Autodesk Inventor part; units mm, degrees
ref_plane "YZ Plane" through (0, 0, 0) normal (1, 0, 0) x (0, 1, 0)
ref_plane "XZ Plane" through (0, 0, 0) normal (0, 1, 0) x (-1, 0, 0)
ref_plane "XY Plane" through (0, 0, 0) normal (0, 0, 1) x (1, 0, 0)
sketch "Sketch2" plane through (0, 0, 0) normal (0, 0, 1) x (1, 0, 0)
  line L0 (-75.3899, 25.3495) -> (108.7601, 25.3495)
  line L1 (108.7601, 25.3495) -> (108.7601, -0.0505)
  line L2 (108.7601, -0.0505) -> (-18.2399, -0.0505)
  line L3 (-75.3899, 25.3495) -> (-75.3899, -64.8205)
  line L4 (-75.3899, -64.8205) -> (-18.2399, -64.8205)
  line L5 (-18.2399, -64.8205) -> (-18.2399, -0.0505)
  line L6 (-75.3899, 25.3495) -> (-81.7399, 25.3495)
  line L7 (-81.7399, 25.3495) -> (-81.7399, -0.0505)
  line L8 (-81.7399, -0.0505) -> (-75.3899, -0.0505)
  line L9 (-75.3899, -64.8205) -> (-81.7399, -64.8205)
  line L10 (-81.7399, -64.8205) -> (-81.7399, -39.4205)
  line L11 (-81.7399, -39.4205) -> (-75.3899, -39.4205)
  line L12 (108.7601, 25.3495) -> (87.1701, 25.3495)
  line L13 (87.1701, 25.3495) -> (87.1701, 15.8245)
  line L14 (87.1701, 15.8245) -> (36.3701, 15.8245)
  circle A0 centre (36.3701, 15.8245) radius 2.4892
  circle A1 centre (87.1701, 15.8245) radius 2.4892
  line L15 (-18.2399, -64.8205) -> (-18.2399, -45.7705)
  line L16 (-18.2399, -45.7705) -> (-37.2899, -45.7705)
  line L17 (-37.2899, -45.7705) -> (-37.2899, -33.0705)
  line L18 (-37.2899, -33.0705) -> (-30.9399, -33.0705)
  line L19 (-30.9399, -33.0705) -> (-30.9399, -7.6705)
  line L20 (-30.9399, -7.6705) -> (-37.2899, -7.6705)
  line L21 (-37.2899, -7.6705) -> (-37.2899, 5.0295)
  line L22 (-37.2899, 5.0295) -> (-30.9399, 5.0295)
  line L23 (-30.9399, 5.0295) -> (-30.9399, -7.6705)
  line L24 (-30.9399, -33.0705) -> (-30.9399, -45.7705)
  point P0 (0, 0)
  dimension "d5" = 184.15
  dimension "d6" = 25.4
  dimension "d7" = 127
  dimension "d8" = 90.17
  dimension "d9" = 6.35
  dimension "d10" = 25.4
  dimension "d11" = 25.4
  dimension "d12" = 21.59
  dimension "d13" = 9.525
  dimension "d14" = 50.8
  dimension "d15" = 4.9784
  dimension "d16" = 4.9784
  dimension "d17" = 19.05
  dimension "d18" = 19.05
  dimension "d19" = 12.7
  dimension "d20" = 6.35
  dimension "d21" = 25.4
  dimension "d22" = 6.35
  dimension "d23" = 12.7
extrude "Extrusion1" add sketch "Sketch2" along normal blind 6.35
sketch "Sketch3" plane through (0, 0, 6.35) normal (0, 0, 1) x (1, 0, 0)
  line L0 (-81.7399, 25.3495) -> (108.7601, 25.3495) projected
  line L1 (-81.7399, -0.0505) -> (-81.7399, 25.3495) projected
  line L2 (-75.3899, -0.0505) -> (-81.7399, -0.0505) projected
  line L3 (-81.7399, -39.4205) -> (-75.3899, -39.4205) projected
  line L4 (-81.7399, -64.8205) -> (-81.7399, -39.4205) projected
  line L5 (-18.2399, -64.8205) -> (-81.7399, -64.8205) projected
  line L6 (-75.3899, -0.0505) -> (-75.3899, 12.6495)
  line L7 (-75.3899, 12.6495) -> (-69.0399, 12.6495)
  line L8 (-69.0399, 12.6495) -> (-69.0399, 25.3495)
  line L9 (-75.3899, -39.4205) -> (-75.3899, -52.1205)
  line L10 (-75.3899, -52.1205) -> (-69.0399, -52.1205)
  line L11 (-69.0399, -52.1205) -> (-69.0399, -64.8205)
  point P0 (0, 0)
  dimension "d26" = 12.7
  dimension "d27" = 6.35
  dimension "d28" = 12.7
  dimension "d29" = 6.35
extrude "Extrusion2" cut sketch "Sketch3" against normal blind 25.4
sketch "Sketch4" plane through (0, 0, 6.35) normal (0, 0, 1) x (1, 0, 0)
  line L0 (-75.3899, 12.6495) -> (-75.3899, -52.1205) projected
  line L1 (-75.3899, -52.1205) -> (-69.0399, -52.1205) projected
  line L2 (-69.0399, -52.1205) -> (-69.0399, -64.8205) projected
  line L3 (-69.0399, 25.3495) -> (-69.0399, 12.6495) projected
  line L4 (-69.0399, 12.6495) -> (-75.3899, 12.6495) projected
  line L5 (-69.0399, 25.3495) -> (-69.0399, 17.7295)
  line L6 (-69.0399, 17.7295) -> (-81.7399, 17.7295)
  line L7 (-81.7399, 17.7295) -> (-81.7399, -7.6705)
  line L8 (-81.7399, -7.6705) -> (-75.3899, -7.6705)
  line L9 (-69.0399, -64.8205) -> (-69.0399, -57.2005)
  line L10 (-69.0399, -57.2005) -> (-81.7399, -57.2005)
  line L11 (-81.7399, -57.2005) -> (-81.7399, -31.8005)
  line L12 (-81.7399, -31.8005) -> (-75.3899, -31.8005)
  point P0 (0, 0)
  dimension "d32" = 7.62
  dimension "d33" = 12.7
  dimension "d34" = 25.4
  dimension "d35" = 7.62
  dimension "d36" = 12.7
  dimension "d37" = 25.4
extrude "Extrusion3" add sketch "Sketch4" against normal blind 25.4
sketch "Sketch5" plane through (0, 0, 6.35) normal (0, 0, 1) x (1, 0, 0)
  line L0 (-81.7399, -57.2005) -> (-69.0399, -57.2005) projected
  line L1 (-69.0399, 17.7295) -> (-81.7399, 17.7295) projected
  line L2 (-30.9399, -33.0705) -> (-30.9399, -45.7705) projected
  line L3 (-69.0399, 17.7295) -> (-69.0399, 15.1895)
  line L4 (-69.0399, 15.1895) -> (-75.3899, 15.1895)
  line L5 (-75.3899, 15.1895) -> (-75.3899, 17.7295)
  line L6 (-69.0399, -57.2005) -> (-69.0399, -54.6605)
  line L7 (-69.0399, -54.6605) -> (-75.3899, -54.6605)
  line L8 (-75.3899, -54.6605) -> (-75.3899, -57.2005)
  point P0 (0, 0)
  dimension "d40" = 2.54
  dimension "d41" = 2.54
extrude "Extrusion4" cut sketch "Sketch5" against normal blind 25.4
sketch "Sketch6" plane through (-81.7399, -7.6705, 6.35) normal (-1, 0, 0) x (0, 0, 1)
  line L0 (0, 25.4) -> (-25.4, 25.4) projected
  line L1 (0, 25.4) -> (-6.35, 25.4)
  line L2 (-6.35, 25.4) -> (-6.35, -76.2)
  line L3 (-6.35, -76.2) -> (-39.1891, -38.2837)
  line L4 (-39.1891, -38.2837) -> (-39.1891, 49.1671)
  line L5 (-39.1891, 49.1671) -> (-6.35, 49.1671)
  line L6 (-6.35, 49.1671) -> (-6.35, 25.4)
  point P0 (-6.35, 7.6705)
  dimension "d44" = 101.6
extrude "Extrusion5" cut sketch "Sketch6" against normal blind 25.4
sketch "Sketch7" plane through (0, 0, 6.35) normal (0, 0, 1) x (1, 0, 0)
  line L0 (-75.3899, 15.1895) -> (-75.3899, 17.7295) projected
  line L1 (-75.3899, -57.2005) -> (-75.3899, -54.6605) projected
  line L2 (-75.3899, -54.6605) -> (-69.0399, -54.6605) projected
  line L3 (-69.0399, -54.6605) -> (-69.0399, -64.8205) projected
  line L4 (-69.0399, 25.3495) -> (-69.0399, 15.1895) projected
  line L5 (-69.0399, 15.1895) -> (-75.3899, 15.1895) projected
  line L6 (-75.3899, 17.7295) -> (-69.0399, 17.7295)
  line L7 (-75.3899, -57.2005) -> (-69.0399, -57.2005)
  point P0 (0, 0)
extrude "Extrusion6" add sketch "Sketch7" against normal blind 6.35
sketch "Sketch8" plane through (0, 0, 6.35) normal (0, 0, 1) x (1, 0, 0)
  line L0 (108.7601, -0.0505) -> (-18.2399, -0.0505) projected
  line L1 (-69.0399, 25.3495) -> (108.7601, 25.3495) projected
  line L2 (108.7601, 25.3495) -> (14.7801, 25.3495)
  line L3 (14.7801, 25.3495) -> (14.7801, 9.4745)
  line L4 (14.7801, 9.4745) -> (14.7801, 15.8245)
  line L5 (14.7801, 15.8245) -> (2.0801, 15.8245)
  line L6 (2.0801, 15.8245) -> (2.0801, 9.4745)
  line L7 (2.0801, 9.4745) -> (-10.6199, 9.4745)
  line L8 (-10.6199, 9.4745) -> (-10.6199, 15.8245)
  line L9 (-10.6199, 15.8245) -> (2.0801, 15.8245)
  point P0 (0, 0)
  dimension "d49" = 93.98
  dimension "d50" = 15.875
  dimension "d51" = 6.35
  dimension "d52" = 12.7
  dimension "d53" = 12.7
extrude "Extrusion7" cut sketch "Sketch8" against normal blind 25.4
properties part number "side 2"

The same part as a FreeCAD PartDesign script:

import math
import FreeCAD as App
import Part
import Sketcher
from FreeCAD import Vector
Q = App.Units.Quantity


def add_polygon(sketch, points):
    """Adds a closed chain of lines whose ends are joined by coincident constraints."""
    first, n = sketch.GeometryCount, len(points)
    for a, b in zip(points, points[1:] + points[:1]):
        sketch.addGeometry(Part.LineSegment(App.Vector(*a, 0), App.Vector(*b, 0)), False)
    for i in range(n):
        sketch.addConstraint(Sketcher.Constraint("Coincident", first + i, 2, first + (i + 1) % n, 1))

doc = App.newDocument("Part")
body = doc.addObject("PartDesign::Body", "Body")

sketch1 = body.newObject("Sketcher::SketchObject", "Sketch")
sketch1.AttachmentSupport = (doc.getObject("XY_Plane"), [""])
sketch1.MapMode = "FlatFace"
add_polygon(sketch1, [(87.2, 25.3), (-81.7, 25.3), (-81.7, -0.1), (-75.4, -0.1), (-75.4, -39.4), (-81.7, -39.4), (-81.7, -64.8), (-18.2, -64.8), (-18.2, -45.8), (-18.2, -0.1), (108.8, -0.1), (108.8, 25.3)])
add_polygon(sketch1, [(-30.9, -33.1), (-30.9, -45.8), (-37.3, -45.8), (-37.3, -33.1)])
add_polygon(sketch1, [(-30.9, 5), (-30.9, -7.7), (-37.3, -7.7), (-37.3, 5)])
sketch1.addGeometry(Part.Circle(Vector(36.4, 15.8, 0), Vector(0, 0, 1), 2.5), False)
sketch1.addGeometry(Part.ArcOfCircle(Part.Circle(Vector(87.2, 15.8, 0), Vector(0, 0, 1), 2.5), math.radians(90), math.radians(180)), False)
sketch1.addGeometry(Part.ArcOfCircle(Part.Circle(Vector(87.2, 15.8, 0), Vector(0, 0, 1), 2.5), math.radians(180), math.radians(450)), False)
sketch1.addConstraint([
    Sketcher.Constraint("Tangent", 21, 1, 22, 2),
    Sketcher.Constraint("Coincident", 22, 1, 21, 2),
    Sketcher.Constraint("Horizontal", 0),
    Sketcher.Constraint("Vertical", 1),
    Sketcher.Constraint("Horizontal", 2),
    Sketcher.Constraint("Vertical", 3),
    Sketcher.Constraint("Horizontal", 4),
    Sketcher.Constraint("Vertical", 5),
    Sketcher.Constraint("Horizontal", 6),
    Sketcher.Constraint("Vertical", 7),
    Sketcher.Constraint("Vertical", 8),
    Sketcher.Constraint("Horizontal", 9),
    Sketcher.Constraint("Vertical", 10),
    Sketcher.Constraint("Horizontal", 11),
    Sketcher.Constraint("Vertical", 12),
    Sketcher.Constraint("Horizontal", 13),
    Sketcher.Constraint("Vertical", 14),
    Sketcher.Constraint("Horizontal", 15),
    Sketcher.Constraint("Vertical", 16),
    Sketcher.Constraint("Horizontal", 17),
    Sketcher.Constraint("Vertical", 18),
    Sketcher.Constraint("Horizontal", 19),
    Sketcher.Constraint("Equal", 20, 21),
    Sketcher.Constraint("Horizontal", 20, 3, 21, 3),
    Sketcher.Constraint("Horizontal", 2, 2, 8, 2),
    Sketcher.Constraint("Horizontal", 7, 2, 12, 2),
    Sketcher.Constraint("Horizontal", 21, 3, 22, 1),
    Sketcher.Constraint("Vertical", 1, 2, 4, 2),
    Sketcher.Constraint("Vertical", 22, 3, 11, 2),
    Sketcher.Constraint("Vertical", 15, 2, 16, 2),
    Sketcher.Constraint("Vertical", 14, 2, 17, 2),
    Sketcher.Constraint("Vertical", 11, 2, 21, 1),
    Sketcher.Constraint("Equal", 4, 13),
    Sketcher.Constraint("Equal", 1, 5),
    Sketcher.Constraint("Equal", 14, 16),
    Sketcher.Constraint("DistanceX", 9, 1, 9, 2, Q("5 in")),
    Sketcher.Constraint("DistanceY", 1, 2, 1, 1, Q("1 in")),
    Sketcher.Constraint("Diameter", 20, Q("0.196 in")),
    Sketcher.Constraint("DistanceY", 12, 2, 12, 1, Q("0.5 in")),
    Sketcher.Constraint("DistanceX", 20, 3, 21, 3, Q("2 in")),
    Sketcher.Constraint("DistanceX", 4, 2, 12, 2, Q("2 in")),
    Sketcher.Constraint("DistanceY", 15, 2, 16, 2, Q("1 in")),
    Sketcher.Constraint("DistanceX", 2, 1, 2, 2, Q("0.25 in")),
    Sketcher.Constraint("DistanceX", 11, 2, 11, 1, Q("0.85 in")),
    Sketcher.Constraint("DistanceY", 7, 1, 7, 2, Q("0.75 in")),
    Sketcher.Constraint("DistanceX", 12, 2, 7, 2, Q("0.5 in")),
    Sketcher.Constraint("DistanceY", 5, 2, 0, 2, Q("3.55 in")),
    Sketcher.Constraint("DistanceY", 20, 3, 0, 2, Q("0.375 in")),
    Sketcher.Constraint("DistanceY", -1, 1, 20, 3, Q("0.623 in")),
    Sketcher.Constraint("DistanceX", -1, 1, 20, 3, Q("1.4319 in")),
])
pad1 = body.newObject("PartDesign::Pad", "Pad")
pad1.Profile = sketch1
pad1.Length = Q("0.25 in")

sketch2 = body.newObject("Sketcher::SketchObject", "Sketch001")
sketch2.AttachmentSupport = (doc.getObject("XY_Plane"), [""])
sketch2.MapMode = "FlatFace"
sketch2.AttachmentOffset = App.Placement(Vector(0, 0, 0.25 * 25.4), App.Rotation())
add_polygon(sketch2, [(-69, 25), (-82, 25), (-82, 0), (-75, 0), (-75, 13), (-69, 13)])
add_polygon(sketch2, [(-75, -39), (-82, -39), (-82, -65), (-69, -65), (-69, -52), (-75, -52)])
sketch2.addConstraint([
    Sketcher.Constraint("Horizontal", 0),
    Sketcher.Constraint("Vertical", 1),
    Sketcher.Constraint("Horizontal", 2),
    Sketcher.Constraint("Vertical", 3),
    Sketcher.Constraint("Horizontal", 4),
    Sketcher.Constraint("Vertical", 5),
    Sketcher.Constraint("Horizontal", 6),
    Sketcher.Constraint("Vertical", 7),
    Sketcher.Constraint("Horizontal", 8),
    Sketcher.Constraint("Vertical", 9),
    Sketcher.Constraint("Horizontal", 10),
    Sketcher.Constraint("Vertical", 11),
    Sketcher.Constraint("Vertical", 1, 2, 6, 2),
    Sketcher.Constraint("Vertical", 5, 2, 8, 2),
    Sketcher.Constraint("Vertical", 3, 2, 10, 2),
    Sketcher.Constraint("Equal", 2, 4),
    Sketcher.Constraint("Equal", 8, 3),
    Sketcher.Constraint("Equal", 3, 5),
    Sketcher.Constraint("Equal", 1, 7),
    Sketcher.Constraint("Equal", 5, 9),
    Sketcher.Constraint("DistanceX", 0, 2, 0, 1, Q("0.5 in")),
    Sketcher.Constraint("DistanceY", 6, 2, 1, 2, Q("1.55 in")),
    Sketcher.Constraint("DistanceY", -1, 1, 0, 2, Q("0.998 in")),
    Sketcher.Constraint("DistanceX", 0, 2, -1, 1, Q("3.2181 in")),
])
pocket1 = body.newObject("PartDesign::Pocket", "Pocket")
pocket1.Profile = sketch2
pocket1.Length = Q("1 in")

sketch3 = body.newObject("Sketcher::SketchObject", "Sketch002")
sketch3.AttachmentSupport = (doc.getObject("XY_Plane"), [""])
sketch3.MapMode = "FlatFace"
sketch3.AttachmentOffset = App.Placement(Vector(0, 0, 0.25 * 25.4), App.Rotation())
add_polygon(sketch3, [(-75, -52), (-75, -32), (-82, -32), (-82, -57), (-69, -57), (-69, -52)])
add_polygon(sketch3, [(-75, -8), (-75, 13), (-69, 13), (-69, 18), (-82, 18), (-82, -8)])
sketch3.addConstraint([
    Sketcher.Constraint("Vertical", 0),
    Sketcher.Constraint("Horizontal", 1),
    Sketcher.Constraint("Vertical", 2),
    Sketcher.Constraint("Horizontal", 3),
    Sketcher.Constraint("Vertical", 4),
    Sketcher.Constraint("Horizontal", 5),
    Sketcher.Constraint("Vertical", 6),
    Sketcher.Constraint("Horizontal", 7),
    Sketcher.Constraint("Vertical", 8),
    Sketcher.Constraint("Horizontal", 9),
    Sketcher.Constraint("Vertical", 10),
    Sketcher.Constraint("Horizontal", 11),
    Sketcher.Constraint("Vertical", 5, 2, 6, 2),
    Sketcher.Constraint("Vertical", 4, 2, 7, 2),
    Sketcher.Constraint("Vertical", 2, 2, 9, 2),
    Sketcher.Constraint("Equal", 1, 5),
    Sketcher.Constraint("Equal", 0, 6),
    Sketcher.Constraint("Equal", 4, 8),
    Sketcher.Constraint("DistanceY", 2, 2, 2, 1, Q("1 in")),
    Sketcher.Constraint("DistanceX", 3, 1, 3, 2, Q("0.5 in")),
    Sketcher.Constraint("DistanceY", 0, 1, 0, 2, Q("0.8 in")),
    Sketcher.Constraint("DistanceY", 0, 2, 6, 2, Q("1.75 in")),
    Sketcher.Constraint("DistanceY", 0, 2, -1, 1, Q("1.252 in")),
    Sketcher.Constraint("DistanceX", 0, 2, -1, 1, Q("2.9681 in")),
])
pad2 = body.newObject("PartDesign::Pad", "Pad001")
pad2.Profile = sketch3
pad2.Length = Q("1 in")
pad2.Reversed = True

sketch4 = body.newObject("Sketcher::SketchObject", "Sketch003")
sketch4.AttachmentSupport = (doc.getObject("XY_Plane"), [""])
sketch4.MapMode = "FlatFace"
sketch4.AttachmentOffset = App.Placement(Vector(0, 0, 0.25 * 25.4), App.Rotation())
add_polygon(sketch4, [(-75.4, -54.7), (-75.4, -57.2), (-69, -57.2), (-69, -54.7)])
add_polygon(sketch4, [(-69, 15.2), (-69, 17.7), (-75.4, 17.7), (-75.4, 15.2)])
sketch4.addConstraint([
    Sketcher.Constraint("Vertical", 0),
    Sketcher.Constraint("Horizontal", 1),
    Sketcher.Constraint("Vertical", 2),
    Sketcher.Constraint("Horizontal", 3),
    Sketcher.Constraint("Vertical", 4),
    Sketcher.Constraint("Horizontal", 5),
    Sketcher.Constraint("Vertical", 6),
    Sketcher.Constraint("Horizontal", 7),
    Sketcher.Constraint("Vertical", 2, 2, 4, 2),
    Sketcher.Constraint("Vertical", 3, 2, 5, 2),
    Sketcher.Constraint("Equal", 2, 4),
    Sketcher.Constraint("DistanceY", 0, 2, 0, 1, Q("0.1 in")),
    Sketcher.Constraint("DistanceX", 1, 1, 1, 2, Q("0.25 in")),
    Sketcher.Constraint("DistanceY", 2, 2, 4, 2, Q("2.85 in")),
    Sketcher.Constraint("DistanceY", 0, 2, -1, 1, Q("2.252 in")),
    Sketcher.Constraint("DistanceX", 0, 2, -1, 1, Q("2.9681 in")),
])
pocket2 = body.newObject("PartDesign::Pocket", "Pocket001")
pocket2.Profile = sketch4
pocket2.Length = Q("1 in")

sketch5 = body.newObject("Sketcher::SketchObject", "Sketch004")
sketch5.AttachmentSupport = (doc.getObject("YZ_Plane"), [""])
sketch5.MapMode = "FlatFace"
sketch5.AttachmentOffset = App.Placement(Vector(0, 0, -3.2181063 * 25.4), App.Rotation())
add_polygon(sketch5, [(-84, 0), (41, 0), (41, -33), (-46, -33)])
sketch5.addConstraint([
    Sketcher.Constraint("Horizontal", 0),
    Sketcher.Constraint("Vertical", 1),
    Sketcher.Constraint("Horizontal", 2),
    Sketcher.Constraint("PointOnObject", 0, 2, -1),
    Sketcher.Constraint("DistanceX", 3, 2, -1, 1, Q("3.302 in")),
    Sketcher.Constraint("DistanceX", 0, 1, 0, 2, Q("4.9357087 in")),
    Sketcher.Constraint("DistanceX", 2, 2, 2, 1, Q("87.4508 mm")),
    Sketcher.Constraint("DistanceY", 1, 2, 1, 1, Q("32.839 mm")),
])
pocket3 = body.newObject("PartDesign::Pocket", "Pocket002")
pocket3.Profile = sketch5
pocket3.Length = Q("1 in")
pocket3.Reversed = True

sketch6 = body.newObject("Sketcher::SketchObject", "Sketch005")
sketch6.AttachmentSupport = (doc.getObject("XY_Plane"), [""])
sketch6.MapMode = "FlatFace"
sketch6.AttachmentOffset = App.Placement(Vector(0, 0, 0.25 * 25.4), App.Rotation())
add_polygon(sketch6, [(-75.4, 17.7), (-75.4, 15.2), (-69, 15.2), (-69, 17.7)])
add_polygon(sketch6, [(-75.4, -54.7), (-75.4, -57.2), (-69, -57.2), (-69, -54.7)])
sketch6.addConstraint([
    Sketcher.Constraint("Vertical", 0),
    Sketcher.Constraint("Horizontal", 1),
    Sketcher.Constraint("Vertical", 2),
    Sketcher.Constraint("Horizontal", 3),
    Sketcher.Constraint("Vertical", 4),
    Sketcher.Constraint("Horizontal", 5),
    Sketcher.Constraint("Vertical", 6),
    Sketcher.Constraint("Horizontal", 7),
    Sketcher.Constraint("Vertical", 3, 2, 4, 2),
    Sketcher.Constraint("Vertical", 2, 2, 5, 2),
    Sketcher.Constraint("Equal", 2, 4),
    Sketcher.Constraint("DistanceY", 0, 2, 0, 1, Q("0.1 in")),
    Sketcher.Constraint("DistanceX", 1, 1, 1, 2, Q("0.25 in")),
    Sketcher.Constraint("DistanceY", 4, 2, 0, 2, Q("2.85 in")),
    Sketcher.Constraint("DistanceY", -1, 1, 0, 2, Q("0.598 in")),
    Sketcher.Constraint("DistanceX", 0, 2, -1, 1, Q("2.9681 in")),
])
pad3 = body.newObject("PartDesign::Pad", "Pad002")
pad3.Profile = sketch6
pad3.Length = Q("0.25 in")
pad3.Reversed = True

sketch7 = body.newObject("Sketcher::SketchObject", "Sketch006")
sketch7.AttachmentSupport = (doc.getObject("XY_Plane"), [""])
sketch7.MapMode = "FlatFace"
sketch7.AttachmentOffset = App.Placement(Vector(0, 0, 0.25 * 25.4), App.Rotation())
add_polygon(sketch7, [(2, 9), (2, 16), (-11, 16), (-11, 9)])
sketch7.addConstraint([
    Sketcher.Constraint("Vertical", 0),
    Sketcher.Constraint("Horizontal", 1),
    Sketcher.Constraint("Vertical", 2),
    Sketcher.Constraint("Horizontal", 3),
    Sketcher.Constraint("DistanceX", 1, 2, 1, 1, Q("0.5 in")),
    Sketcher.Constraint("DistanceY", 0, 1, 0, 2, Q("0.25 in")),
    Sketcher.Constraint("DistanceY", -1, 1, 0, 2, Q("0.623 in")),
    Sketcher.Constraint("DistanceX", -1, 1, 0, 2, Q("0.0819 in")),
])
pocket4 = body.newObject("PartDesign::Pocket", "Pocket003")
pocket4.Profile = sketch7
pocket4.Length = Q("1 in")

doc.recompute()
